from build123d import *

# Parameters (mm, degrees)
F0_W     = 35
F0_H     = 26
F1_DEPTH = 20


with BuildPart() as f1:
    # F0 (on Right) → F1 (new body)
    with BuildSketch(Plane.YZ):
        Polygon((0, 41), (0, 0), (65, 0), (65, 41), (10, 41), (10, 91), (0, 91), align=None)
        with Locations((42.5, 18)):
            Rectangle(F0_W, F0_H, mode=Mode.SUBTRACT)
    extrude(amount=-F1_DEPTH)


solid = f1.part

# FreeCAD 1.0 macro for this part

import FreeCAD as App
import Part
import Sketcher

V = App.Vector


def add_polygon(sketch, points):
    """Adds a closed chain of lines whose ends are joined by coincident constraints."""
    first, n = sketch.GeometryCount, len(points)
    for a, b in zip(points, points[1:] + points[:1]):
        sketch.addGeometry(Part.LineSegment(App.Vector(*a, 0), App.Vector(*b, 0)), False)
    for i in range(n):
        sketch.addConstraint(Sketcher.Constraint("Coincident", first + i, 2, first + (i + 1) % n, 1))

doc = App.newDocument("Part")
params = doc.addObject("Spreadsheet::Sheet", "Params")
for row, (alias, value) in enumerate([
    ("sketch1_width", "65 mm"),
    ("sketch1_width2", "55 mm"),
    ("sketch1_width3", "35 mm"),
    ("sketch1_height", "41 mm"),
    ("sketch1_height2", "50 mm"),
    ("pad1_length", "20 mm"),
], start=1):
    params.set(f"A{row}", alias)
    params.set(f"B{row}", "=" + value)
    params.setAlias(f"B{row}", alias)

body = doc.addObject("PartDesign::Body", "Body")

# Sketch on YZ plane
sketch1 = doc.addObject("Sketcher::SketchObject", "Sketch")
body.addObject(sketch1)
sketch1.AttachmentSupport = (doc.YZ_Plane, [""])
sketch1.MapMode = "FlatFace"
add_polygon(sketch1, [(0, 0), (65, 0), (65, 41), (10, 41), (10, 91), (0, 91)])  # lines 0-5
add_polygon(sketch1, [(60, 5), (25, 5), (25, 31), (60, 31)])  # lines 6-9
sketch1.addConstraint(Sketcher.Constraint("Horizontal", 0))
sketch1.addConstraint(Sketcher.Constraint("Vertical", 1))
sketch1.addConstraint(Sketcher.Constraint("Horizontal", 2))
sketch1.addConstraint(Sketcher.Constraint("Vertical", 3))
sketch1.addConstraint(Sketcher.Constraint("Horizontal", 4))
sketch1.addConstraint(Sketcher.Constraint("Vertical", 5))
sketch1.addConstraint(Sketcher.Constraint("Horizontal", 6))
sketch1.addConstraint(Sketcher.Constraint("Vertical", 7))
sketch1.addConstraint(Sketcher.Constraint("Horizontal", 8))
sketch1.addConstraint(Sketcher.Constraint("Vertical", 9))
sketch1.addConstraint(Sketcher.Constraint("Coincident", 5, 2, -1, 1))
sketch1.addConstraint(Sketcher.Constraint("DistanceX", 0, 1, 0, 2, 65.0))
sketch1.addConstraint(Sketcher.Constraint("DistanceX", 2, 2, 2, 1, 55.0))
sketch1.addConstraint(Sketcher.Constraint("DistanceX", 6, 2, 6, 1, 35.0))
sketch1.addConstraint(Sketcher.Constraint("DistanceY", 1, 1, 1, 2, 41.0))
sketch1.addConstraint(Sketcher.Constraint("DistanceY", 3, 1, 3, 2, 50.0))
sketch1.addConstraint(Sketcher.Constraint("DistanceY", 7, 1, 7, 2, 26.0))
sketch1.addConstraint(Sketcher.Constraint("DistanceX", -1, 1, 6, 2, 25.0))
sketch1.addConstraint(Sketcher.Constraint("DistanceY", -1, 1, 6, 2, 5.0))
sketch1.setExpression("Constraints[21]", "Params.sketch1_width")
sketch1.setExpression("Constraints[22]", "Params.sketch1_width2")
sketch1.setExpression("Constraints[23]", "Params.sketch1_width3")
sketch1.setExpression("Constraints[24]", "Params.sketch1_height")
sketch1.setExpression("Constraints[25]", "Params.sketch1_height2")
pad1 = doc.addObject("PartDesign::Pad", "Pad")
body.addObject(pad1)
pad1.Profile = sketch1
pad1.setExpression("Length", "Params.pad1_length")
pad1.Reversed = True

doc.recompute()
